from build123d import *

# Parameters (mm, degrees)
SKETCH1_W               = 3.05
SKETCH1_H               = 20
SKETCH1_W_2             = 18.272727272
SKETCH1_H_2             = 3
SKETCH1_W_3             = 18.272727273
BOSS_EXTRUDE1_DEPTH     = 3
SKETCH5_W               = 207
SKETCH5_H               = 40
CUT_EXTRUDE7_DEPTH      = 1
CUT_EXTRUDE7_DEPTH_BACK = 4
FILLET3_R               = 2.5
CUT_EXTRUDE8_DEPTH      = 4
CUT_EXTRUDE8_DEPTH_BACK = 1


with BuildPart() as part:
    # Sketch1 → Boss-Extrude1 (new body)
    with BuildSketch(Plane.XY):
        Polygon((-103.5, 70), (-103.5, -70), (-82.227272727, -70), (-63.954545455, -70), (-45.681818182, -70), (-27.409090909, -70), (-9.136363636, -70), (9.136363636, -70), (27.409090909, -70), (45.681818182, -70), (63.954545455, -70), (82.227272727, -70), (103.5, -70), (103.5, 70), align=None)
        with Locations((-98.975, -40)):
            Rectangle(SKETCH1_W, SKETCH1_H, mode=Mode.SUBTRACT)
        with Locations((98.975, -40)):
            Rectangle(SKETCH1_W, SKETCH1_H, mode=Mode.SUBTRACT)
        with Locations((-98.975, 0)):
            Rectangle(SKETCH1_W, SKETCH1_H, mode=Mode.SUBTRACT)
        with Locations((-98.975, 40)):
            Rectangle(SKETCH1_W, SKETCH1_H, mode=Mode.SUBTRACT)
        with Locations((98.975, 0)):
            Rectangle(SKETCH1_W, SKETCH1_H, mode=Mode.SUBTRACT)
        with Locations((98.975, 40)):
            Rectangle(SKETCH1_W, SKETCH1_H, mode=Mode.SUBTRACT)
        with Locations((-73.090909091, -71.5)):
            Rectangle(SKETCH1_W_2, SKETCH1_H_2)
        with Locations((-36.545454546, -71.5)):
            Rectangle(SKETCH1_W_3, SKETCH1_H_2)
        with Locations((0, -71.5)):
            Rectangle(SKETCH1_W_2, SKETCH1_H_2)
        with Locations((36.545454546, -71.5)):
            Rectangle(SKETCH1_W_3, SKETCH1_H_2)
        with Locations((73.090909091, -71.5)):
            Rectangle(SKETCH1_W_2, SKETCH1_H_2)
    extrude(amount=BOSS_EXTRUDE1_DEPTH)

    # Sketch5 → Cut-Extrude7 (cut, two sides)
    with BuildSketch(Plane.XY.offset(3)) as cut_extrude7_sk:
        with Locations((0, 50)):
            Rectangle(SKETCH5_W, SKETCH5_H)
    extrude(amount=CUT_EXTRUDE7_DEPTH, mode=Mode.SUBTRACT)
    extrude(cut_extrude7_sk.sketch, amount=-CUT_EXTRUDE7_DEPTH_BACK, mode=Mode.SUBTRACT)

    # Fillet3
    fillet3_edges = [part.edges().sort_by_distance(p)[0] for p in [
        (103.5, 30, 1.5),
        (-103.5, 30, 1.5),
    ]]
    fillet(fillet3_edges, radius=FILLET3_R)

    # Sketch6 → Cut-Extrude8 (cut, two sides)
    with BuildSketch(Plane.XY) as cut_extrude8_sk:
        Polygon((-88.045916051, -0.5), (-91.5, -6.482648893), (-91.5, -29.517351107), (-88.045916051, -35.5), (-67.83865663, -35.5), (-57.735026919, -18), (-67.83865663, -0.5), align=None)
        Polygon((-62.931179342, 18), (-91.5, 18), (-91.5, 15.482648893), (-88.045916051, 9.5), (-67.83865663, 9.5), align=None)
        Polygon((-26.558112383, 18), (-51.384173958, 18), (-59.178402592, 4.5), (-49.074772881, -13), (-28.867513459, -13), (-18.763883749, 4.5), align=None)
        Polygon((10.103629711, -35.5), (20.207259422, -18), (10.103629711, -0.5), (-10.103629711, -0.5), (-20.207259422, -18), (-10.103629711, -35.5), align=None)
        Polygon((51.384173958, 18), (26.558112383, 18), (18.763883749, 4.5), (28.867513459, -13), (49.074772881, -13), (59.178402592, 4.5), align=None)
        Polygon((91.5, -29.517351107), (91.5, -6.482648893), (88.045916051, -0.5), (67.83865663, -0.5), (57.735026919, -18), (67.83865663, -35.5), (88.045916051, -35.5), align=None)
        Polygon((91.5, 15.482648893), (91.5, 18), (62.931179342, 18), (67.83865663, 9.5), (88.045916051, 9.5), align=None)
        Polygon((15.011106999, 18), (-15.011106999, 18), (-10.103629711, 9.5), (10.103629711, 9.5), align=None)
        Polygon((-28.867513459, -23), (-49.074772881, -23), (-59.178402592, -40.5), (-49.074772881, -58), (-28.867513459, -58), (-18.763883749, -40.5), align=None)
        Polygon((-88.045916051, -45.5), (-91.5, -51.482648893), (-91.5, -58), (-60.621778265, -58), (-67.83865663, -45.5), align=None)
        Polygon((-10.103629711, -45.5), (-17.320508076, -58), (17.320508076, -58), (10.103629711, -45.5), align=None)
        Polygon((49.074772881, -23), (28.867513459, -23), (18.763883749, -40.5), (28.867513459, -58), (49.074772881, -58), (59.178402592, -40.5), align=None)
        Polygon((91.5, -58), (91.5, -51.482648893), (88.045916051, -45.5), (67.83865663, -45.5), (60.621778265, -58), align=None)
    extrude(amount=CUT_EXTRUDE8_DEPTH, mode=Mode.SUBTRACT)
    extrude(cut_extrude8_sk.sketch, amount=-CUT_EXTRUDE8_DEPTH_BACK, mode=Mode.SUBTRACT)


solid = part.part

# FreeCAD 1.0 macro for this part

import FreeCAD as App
import Part
import Sketcher
Q = App.Units.Quantity


def edges_at(feature, points):
    """Names of the edges that pass closest to the given points."""
    edges = feature.Shape.Edges
    near = lambda p: min(range(len(edges)), key=lambda i: edges[i].distToShape(Part.Vertex(*p))[0])
    return sorted({f"Edge{near(p) + 1}" for p in points})

doc = App.newDocument("Part")
params = doc.addObject("Spreadsheet::Sheet", "Params")
for row, (alias, value) in enumerate([
    ("sketch1_width", "207 mm"),
    ("sketch1_height", "140 mm"),
    ("sketch1_height2", "3 mm"),
    ("sketch1_height3", "20 mm"),
    ("sketch1_width2", "3.05 mm"),
    ("pad1_length", "3 mm"),
    ("sketch2_width", "207 mm"),
    ("sketch2_height", "40 mm"),
    ("fillet_radius", "2.5 mm"),
], start=1):
    params.set(f"A{row}", alias)
    params.set(f"B{row}", "=" + value)
    params.setAlias(f"B{row}", alias)

body = doc.addObject("PartDesign::Body", "Body")

# Sketch on XY plane
sketch1 = body.newObject("Sketcher::SketchObject", "Sketch")
sketch1.AttachmentSupport = (doc.getObject("XY_Plane"), [""])
sketch1.MapMode = "FlatFace"
sketch1.addGeometry([
    Part.LineSegment(App.Vector(-103.5, 70, 0), App.Vector(-103.5, -70, 0)),  # 0
    Part.LineSegment(App.Vector(-103.5, -70, 0), App.Vector(-82.227273, -70, 0)),  # 1
    Part.LineSegment(App.Vector(-82.227273, -70, 0), App.Vector(-82.227273, -73, 0)),  # 2
    Part.LineSegment(App.Vector(-82.227273, -73, 0), App.Vector(-63.954545, -73, 0)),  # 3
    Part.LineSegment(App.Vector(-63.954545, -73, 0), App.Vector(-63.954545, -70, 0)),  # 4
    Part.LineSegment(App.Vector(-63.954545, -70, 0), App.Vector(-45.681818, -70, 0)),  # 5
    Part.LineSegment(App.Vector(-45.681818, -70, 0), App.Vector(-45.681818, -73, 0)),  # 6
    Part.LineSegment(App.Vector(-45.681818, -73, 0), App.Vector(-27.409091, -73, 0)),  # 7
    Part.LineSegment(App.Vector(-27.409091, -73, 0), App.Vector(-27.409091, -70, 0)),  # 8
    Part.LineSegment(App.Vector(-27.409091, -70, 0), App.Vector(-9.136364, -70, 0)),  # 9
    Part.LineSegment(App.Vector(-9.136364, -70, 0), App.Vector(-9.136364, -73, 0)),  # 10
    Part.LineSegment(App.Vector(-9.136364, -73, 0), App.Vector(9.136364, -73, 0)),  # 11
    Part.LineSegment(App.Vector(9.136364, -73, 0), App.Vector(9.136364, -70, 0)),  # 12
    Part.LineSegment(App.Vector(9.136364, -70, 0), App.Vector(27.409091, -70, 0)),  # 13
    Part.LineSegment(App.Vector(27.409091, -70, 0), App.Vector(27.409091, -73, 0)),  # 14
    Part.LineSegment(App.Vector(27.409091, -73, 0), App.Vector(45.681818, -73, 0)),  # 15
    Part.LineSegment(App.Vector(45.681818, -73, 0), App.Vector(45.681818, -70, 0)),  # 16
    Part.LineSegment(App.Vector(45.681818, -70, 0), App.Vector(63.954545, -70, 0)),  # 17
    Part.LineSegment(App.Vector(63.954545, -70, 0), App.Vector(63.954545, -73, 0)),  # 18
    Part.LineSegment(App.Vector(63.954545, -73, 0), App.Vector(82.227273, -73, 0)),  # 19
    Part.LineSegment(App.Vector(82.227273, -73, 0), App.Vector(82.227273, -70, 0)),  # 20
    Part.LineSegment(App.Vector(82.227273, -70, 0), App.Vector(103.5, -70, 0)),  # 21
    Part.LineSegment(App.Vector(103.5, -70, 0), App.Vector(103.5, 70, 0)),  # 22
    Part.LineSegment(App.Vector(103.5, 70, 0), App.Vector(-103.5, 70, 0)),  # 23
    Part.LineSegment(App.Vector(-97.45, -50, 0), App.Vector(-100.5, -50, 0)),  # 24
    Part.LineSegment(App.Vector(-100.5, -50, 0), App.Vector(-100.5, -30, 0)),  # 25
    Part.LineSegment(App.Vector(-100.5, -30, 0), App.Vector(-97.45, -30, 0)),  # 26
    Part.LineSegment(App.Vector(-97.45, -30, 0), App.Vector(-97.45, -50, 0)),  # 27
    Part.LineSegment(App.Vector(100.5, -50, 0), App.Vector(97.45, -50, 0)),  # 28
    Part.LineSegment(App.Vector(97.45, -50, 0), App.Vector(97.45, -30, 0)),  # 29
    Part.LineSegment(App.Vector(97.45, -30, 0), App.Vector(100.5, -30, 0)),  # 30
    Part.LineSegment(App.Vector(100.5, -30, 0), App.Vector(100.5, -50, 0)),  # 31
    Part.LineSegment(App.Vector(-97.45, -10, 0), App.Vector(-100.5, -10, 0)),  # 32
    Part.LineSegment(App.Vector(-100.5, -10, 0), App.Vector(-100.5, 10, 0)),  # 33
    Part.LineSegment(App.Vector(-100.5, 10, 0), App.Vector(-97.45, 10, 0)),  # 34
    Part.LineSegment(App.Vector(-97.45, 10, 0), App.Vector(-97.45, -10, 0)),  # 35
    Part.LineSegment(App.Vector(-97.45, 30, 0), App.Vector(-100.5, 30, 0)),  # 36
    Part.LineSegment(App.Vector(-100.5, 30, 0), App.Vector(-100.5, 50, 0)),  # 37
    Part.LineSegment(App.Vector(-100.5, 50, 0), App.Vector(-97.45, 50, 0)),  # 38
    Part.LineSegment(App.Vector(-97.45, 50, 0), App.Vector(-97.45, 30, 0)),  # 39
    Part.LineSegment(App.Vector(100.5, -10, 0), App.Vector(97.45, -10, 0)),  # 40
    Part.LineSegment(App.Vector(97.45, -10, 0), App.Vector(97.45, 10, 0)),  # 41
    Part.LineSegment(App.Vector(97.45, 10, 0), App.Vector(100.5, 10, 0)),  # 42
    Part.LineSegment(App.Vector(100.5, 10, 0), App.Vector(100.5, -10, 0)),  # 43
    Part.LineSegment(App.Vector(100.5, 30, 0), App.Vector(97.45, 30, 0)),  # 44
    Part.LineSegment(App.Vector(97.45, 30, 0), App.Vector(97.45, 50, 0)),  # 45
    Part.LineSegment(App.Vector(97.45, 50, 0), App.Vector(100.5, 50, 0)),  # 46
    Part.LineSegment(App.Vector(100.5, 50, 0), App.Vector(100.5, 30, 0)),  # 47
], False)
sketch1.addConstraint([
    Sketcher.Constraint("Coincident", 0, 2, 1, 1),
    Sketcher.Constraint("Coincident", 1, 2, 2, 1),
    Sketcher.Constraint("Coincident", 2, 2, 3, 1),
    Sketcher.Constraint("Coincident", 3, 2, 4, 1),
    Sketcher.Constraint("Coincident", 4, 2, 5, 1),
    Sketcher.Constraint("Coincident", 5, 2, 6, 1),
    Sketcher.Constraint("Coincident", 6, 2, 7, 1),
    Sketcher.Constraint("Coincident", 7, 2, 8, 1),
    Sketcher.Constraint("Coincident", 8, 2, 9, 1),
    Sketcher.Constraint("Coincident", 9, 2, 10, 1),
    Sketcher.Constraint("Coincident", 10, 2, 11, 1),
    Sketcher.Constraint("Coincident", 11, 2, 12, 1),
    Sketcher.Constraint("Coincident", 12, 2, 13, 1),
    Sketcher.Constraint("Coincident", 13, 2, 14, 1),
    Sketcher.Constraint("Coincident", 14, 2, 15, 1),
    Sketcher.Constraint("Coincident", 15, 2, 16, 1),
    Sketcher.Constraint("Coincident", 16, 2, 17, 1),
    Sketcher.Constraint("Coincident", 17, 2, 18, 1),
    Sketcher.Constraint("Coincident", 18, 2, 19, 1),
    Sketcher.Constraint("Coincident", 19, 2, 20, 1),
    Sketcher.Constraint("Coincident", 20, 2, 21, 1),
    Sketcher.Constraint("Coincident", 21, 2, 22, 1),
    Sketcher.Constraint("Coincident", 22, 2, 23, 1),
    Sketcher.Constraint("Coincident", 23, 2, 0, 1),
    Sketcher.Constraint("Coincident", 24, 2, 25, 1),
    Sketcher.Constraint("Coincident", 25, 2, 26, 1),
    Sketcher.Constraint("Coincident", 26, 2, 27, 1),
    Sketcher.Constraint("Coincident", 27, 2, 24, 1),
    Sketcher.Constraint("Coincident", 28, 2, 29, 1),
    Sketcher.Constraint("Coincident", 29, 2, 30, 1),
    Sketcher.Constraint("Coincident", 30, 2, 31, 1),
    Sketcher.Constraint("Coincident", 31, 2, 28, 1),
    Sketcher.Constraint("Coincident", 32, 2, 33, 1),
    Sketcher.Constraint("Coincident", 33, 2, 34, 1),
    Sketcher.Constraint("Coincident", 34, 2, 35, 1),
    Sketcher.Constraint("Coincident", 35, 2, 32, 1),
    Sketcher.Constraint("Coincident", 36, 2, 37, 1),
    Sketcher.Constraint("Coincident", 37, 2, 38, 1),
    Sketcher.Constraint("Coincident", 38, 2, 39, 1),
    Sketcher.Constraint("Coincident", 39, 2, 36, 1),
    Sketcher.Constraint("Coincident", 40, 2, 41, 1),
    Sketcher.Constraint("Coincident", 41, 2, 42, 1),
    Sketcher.Constraint("Coincident", 42, 2, 43, 1),
    Sketcher.Constraint("Coincident", 43, 2, 40, 1),
    Sketcher.Constraint("Coincident", 44, 2, 45, 1),
    Sketcher.Constraint("Coincident", 45, 2, 46, 1),
    Sketcher.Constraint("Coincident", 46, 2, 47, 1),
    Sketcher.Constraint("Coincident", 47, 2, 44, 1),
    Sketcher.Constraint("Vertical", 0),
    Sketcher.Constraint("Horizontal", 1),
    Sketcher.Constraint("Vertical", 2),
    Sketcher.Constraint("Horizontal", 3),
    Sketcher.Constraint("Vertical", 4),
    Sketcher.Constraint("Horizontal", 5),
    Sketcher.Constraint("Vertical", 6),
    Sketcher.Constraint("Horizontal", 7),
    Sketcher.Constraint("Vertical", 8),
    Sketcher.Constraint("Horizontal", 9),
    Sketcher.Constraint("Vertical", 10),
    Sketcher.Constraint("Horizontal", 11),
    Sketcher.Constraint("Vertical", 12),
    Sketcher.Constraint("Horizontal", 13),
    Sketcher.Constraint("Vertical", 14),
    Sketcher.Constraint("Horizontal", 15),
    Sketcher.Constraint("Vertical", 16),
    Sketcher.Constraint("Horizontal", 17),
    Sketcher.Constraint("Vertical", 18),
    Sketcher.Constraint("Horizontal", 19),
    Sketcher.Constraint("Vertical", 20),
    Sketcher.Constraint("Horizontal", 21),
    Sketcher.Constraint("Vertical", 22),
    Sketcher.Constraint("Horizontal", 23),
    Sketcher.Constraint("Horizontal", 24),
    Sketcher.Constraint("Vertical", 25),
    Sketcher.Constraint("Horizontal", 26),
    Sketcher.Constraint("Vertical", 27),
    Sketcher.Constraint("Horizontal", 28),
    Sketcher.Constraint("Vertical", 29),
    Sketcher.Constraint("Horizontal", 30),
    Sketcher.Constraint("Vertical", 31),
    Sketcher.Constraint("Horizontal", 32),
    Sketcher.Constraint("Vertical", 33),
    Sketcher.Constraint("Horizontal", 34),
    Sketcher.Constraint("Vertical", 35),
    Sketcher.Constraint("Horizontal", 36),
    Sketcher.Constraint("Vertical", 37),
    Sketcher.Constraint("Horizontal", 38),
    Sketcher.Constraint("Vertical", 39),
    Sketcher.Constraint("Horizontal", 40),
    Sketcher.Constraint("Vertical", 41),
    Sketcher.Constraint("Horizontal", 42),
    Sketcher.Constraint("Vertical", 43),
    Sketcher.Constraint("Horizontal", 44),
    Sketcher.Constraint("Vertical", 45),
    Sketcher.Constraint("Horizontal", 46),
    Sketcher.Constraint("Vertical", 47),
    Sketcher.Constraint("Symmetric", 0, 2, 22, 2, -1, 1),
    Sketcher.Constraint("Symmetric", 30, 2, 36, 2, -1, 1),
    Sketcher.Constraint("Symmetric", 28, 2, 38, 2, -1, 1),
    Sketcher.Constraint("Symmetric", 34, 2, 40, 2, -1, 1),
    Sketcher.Constraint("Symmetric", 32, 2, 42, 2, -1, 1),
    Sketcher.Constraint("Symmetric", 26, 2, 44, 2, -1, 1),
    Sketcher.Constraint("Symmetric", 24, 2, 46, 2, -1, 1),
    Sketcher.Constraint("Symmetric", 9, 2, 12, 2, -2),
    Sketcher.Constraint("Symmetric", 7, 2, 14, 2, -2),
    Sketcher.Constraint("Symmetric", 5, 2, 16, 2, -2),
    Sketcher.Constraint("Symmetric", 3, 2, 18, 2, -2),
    Sketcher.Constraint("Symmetric", 1, 2, 20, 2, -2),
    Sketcher.Constraint("Symmetric", 27, 2, 28, 2, -2),
    Sketcher.Constraint("Symmetric", 25, 2, 30, 2, -2),
    Sketcher.Constraint("Horizontal", 1, 2, 4, 2),
    Sketcher.Constraint("Horizontal", 3, 2, 6, 2),
    Sketcher.Constraint("Horizontal", 5, 2, 8, 2),
    Sketcher.Constraint("Horizontal", 7, 2, 10, 2),
    Sketcher.Constraint("Horizontal", 35, 2, 40, 2),
    Sketcher.Constraint("Vertical", 25, 2, 32, 2),
    Sketcher.Constraint("Vertical", 27, 2, 34, 2),
    Sketcher.Constraint("Equal", 3, 5),
    Sketcher.Constraint("Equal", 5, 7),
    Sketcher.Constraint("Equal", 7, 9),
    Sketcher.Constraint("Equal", 9, 11),
    Sketcher.Constraint("Equal", 31, 33),
    Sketcher.Constraint("DistanceX", 23, 2, 23, 1, 207.0),
    Sketcher.Constraint("DistanceY", 0, 2, 0, 1, 140.0),
    Sketcher.Constraint("DistanceY", 2, 2, 2, 1, 3.0),
    Sketcher.Constraint("DistanceY", 25, 1, 25, 2, 20.0),
    Sketcher.Constraint("DistanceY", 24, 2, -1, 1, 50.0),
    Sketcher.Constraint("DistanceX", 0, 2, 24, 2, 3.0),
    Sketcher.Constraint("DistanceX", 24, 2, 24, 1, 3.05),
    Sketcher.Constraint("DistanceX", 1, 1, 1, 2, 21.272727),
])
sketch1.setExpression("Constraints[122]", "Params.sketch1_width")
sketch1.setExpression("Constraints[123]", "Params.sketch1_height")
sketch1.setExpression("Constraints[124]", "Params.sketch1_height2")
sketch1.setExpression("Constraints[125]", "Params.sketch1_height3")
sketch1.setExpression("Constraints[128]", "Params.sketch1_width2")
pad1 = body.newObject("PartDesign::Pad", "Pad")
pad1.Profile = sketch1
pad1.setExpression("Length", "Params.pad1_length")

# Sketch on XY plane
sketch2 = body.newObject("Sketcher::SketchObject", "Sketch001")
sketch2.AttachmentSupport = (doc.getObject("XY_Plane"), [""])
sketch2.MapMode = "FlatFace"
sketch2.AttachmentOffset = App.Placement(App.Vector(0, 0, 3), App.Rotation())
sketch2.addGeometry([
    Part.LineSegment(App.Vector(-103.5, 70, 0), App.Vector(-103.5, 30, 0)),
    Part.LineSegment(App.Vector(-103.5, 30, 0), App.Vector(103.5, 30, 0)),
    Part.LineSegment(App.Vector(103.5, 30, 0), App.Vector(103.5, 70, 0)),
    Part.LineSegment(App.Vector(103.5, 70, 0), App.Vector(-103.5, 70, 0)),
], False)
sketch2.addConstraint([
    Sketcher.Constraint("Coincident", 0, 2, 1, 1),
    Sketcher.Constraint("Coincident", 1, 2, 2, 1),
    Sketcher.Constraint("Coincident", 2, 2, 3, 1),
    Sketcher.Constraint("Coincident", 3, 2, 0, 1),
    Sketcher.Constraint("Vertical", 0),
    Sketcher.Constraint("Horizontal", 1),
    Sketcher.Constraint("Vertical", 2),
    Sketcher.Constraint("Horizontal", 3),
    Sketcher.Constraint("DistanceX", 1, 1, 1, 2, 207.0),
    Sketcher.Constraint("DistanceY", 0, 2, 0, 1, 40.0),
    Sketcher.Constraint("DistanceY", -1, 1, 0, 2, 30.0),
    Sketcher.Constraint("DistanceX", 0, 2, -1, 1, 103.5),
])
sketch2.setExpression("Constraints[8]", "Params.sketch2_width")
sketch2.setExpression("Constraints[9]", "Params.sketch2_height")
pocket1 = body.newObject("PartDesign::Pocket", "Pocket")
pocket1.Profile = sketch2
pocket1.Type = "ThroughAll"
pocket1.Midplane = True
doc.recompute()

fillet = body.newObject("PartDesign::Fillet", "Fillet")
fillet.Base = (pocket1, edges_at(pocket1, [(103.5, 30, 1.5), (-103.5, 30, 1.5)]))
fillet.setExpression("Radius", "Params.fillet_radius")

# Sketch on XY plane
sketch3 = body.newObject("Sketcher::SketchObject", "Sketch002")
sketch3.AttachmentSupport = (doc.getObject("XY_Plane"), [""])
sketch3.MapMode = "FlatFace"
sketch3.addGeometry([
    Part.LineSegment(App.Vector(-88.045916, -0.5, 0), App.Vector(-91.5, -6.482649, 0)),  # 0
    Part.LineSegment(App.Vector(-91.5, -6.482649, 0), App.Vector(-91.5, -29.517351, 0)),  # 1
    Part.LineSegment(App.Vector(-91.5, -29.517351, 0), App.Vector(-88.045916, -35.5, 0)),  # 2
    Part.LineSegment(App.Vector(-88.045916, -35.5, 0), App.Vector(-67.838657, -35.5, 0)),  # 3
    Part.LineSegment(App.Vector(-67.838657, -35.5, 0), App.Vector(-57.735027, -18, 0)),  # 4
    Part.LineSegment(App.Vector(-57.735027, -18, 0), App.Vector(-67.838657, -0.5, 0)),  # 5
    Part.LineSegment(App.Vector(-67.838657, -0.5, 0), App.Vector(-88.045916, -0.5, 0)),  # 6
    Part.LineSegment(App.Vector(-62.931179, 18, 0), App.Vector(-91.5, 18, 0)),  # 7
    Part.LineSegment(App.Vector(-91.5, 18, 0), App.Vector(-91.5, 15.482649, 0)),  # 8
    Part.LineSegment(App.Vector(-91.5, 15.482649, 0), App.Vector(-88.045916, 9.5, 0)),  # 9
    Part.LineSegment(App.Vector(-88.045916, 9.5, 0), App.Vector(-67.838657, 9.5, 0)),  # 10
    Part.LineSegment(App.Vector(-67.838657, 9.5, 0), App.Vector(-62.931179, 18, 0)),  # 11
    Part.LineSegment(App.Vector(-26.558112, 18, 0), App.Vector(-51.384174, 18, 0)),  # 12
    Part.LineSegment(App.Vector(-51.384174, 18, 0), App.Vector(-59.178403, 4.5, 0)),  # 13
    Part.LineSegment(App.Vector(-59.178403, 4.5, 0), App.Vector(-49.074773, -13, 0)),  # 14
    Part.LineSegment(App.Vector(-49.074773, -13, 0), App.Vector(-28.867513, -13, 0)),  # 15
    Part.LineSegment(App.Vector(-28.867513, -13, 0), App.Vector(-18.763884, 4.5, 0)),  # 16
    Part.LineSegment(App.Vector(-18.763884, 4.5, 0), App.Vector(-26.558112, 18, 0)),  # 17
    Part.LineSegment(App.Vector(10.10363, -35.5, 0), App.Vector(20.207259, -18, 0)),  # 18
    Part.LineSegment(App.Vector(20.207259, -18, 0), App.Vector(10.10363, -0.5, 0)),  # 19
    Part.LineSegment(App.Vector(10.10363, -0.5, 0), App.Vector(-10.10363, -0.5, 0)),  # 20
    Part.LineSegment(App.Vector(-10.10363, -0.5, 0), App.Vector(-20.207259, -18, 0)),  # 21
    Part.LineSegment(App.Vector(-20.207259, -18, 0), App.Vector(-10.10363, -35.5, 0)),  # 22
    Part.LineSegment(App.Vector(-10.10363, -35.5, 0), App.Vector(10.10363, -35.5, 0)),  # 23
    Part.LineSegment(App.Vector(51.384174, 18, 0), App.Vector(26.558112, 18, 0)),  # 24
    Part.LineSegment(App.Vector(26.558112, 18, 0), App.Vector(18.763884, 4.5, 0)),  # 25
    Part.LineSegment(App.Vector(18.763884, 4.5, 0), App.Vector(28.867513, -13, 0)),  # 26
    Part.LineSegment(App.Vector(28.867513, -13, 0), App.Vector(49.074773, -13, 0)),  # 27
    Part.LineSegment(App.Vector(49.074773, -13, 0), App.Vector(59.178403, 4.5, 0)),  # 28
    Part.LineSegment(App.Vector(59.178403, 4.5, 0), App.Vector(51.384174, 18, 0)),  # 29
    Part.LineSegment(App.Vector(91.5, -29.517351, 0), App.Vector(91.5, -6.482649, 0)),  # 30
    Part.LineSegment(App.Vector(91.5, -6.482649, 0), App.Vector(88.045916, -0.5, 0)),  # 31
    Part.LineSegment(App.Vector(88.045916, -0.5, 0), App.Vector(67.838657, -0.5, 0)),  # 32
    Part.LineSegment(App.Vector(67.838657, -0.5, 0), App.Vector(57.735027, -18, 0)),  # 33
    Part.LineSegment(App.Vector(57.735027, -18, 0), App.Vector(67.838657, -35.5, 0)),  # 34
    Part.LineSegment(App.Vector(67.838657, -35.5, 0), App.Vector(88.045916, -35.5, 0)),  # 35
    Part.LineSegment(App.Vector(88.045916, -35.5, 0), App.Vector(91.5, -29.517351, 0)),  # 36
    Part.LineSegment(App.Vector(91.5, 15.482649, 0), App.Vector(91.5, 18, 0)),  # 37
    Part.LineSegment(App.Vector(91.5, 18, 0), App.Vector(62.931179, 18, 0)),  # 38
    Part.LineSegment(App.Vector(62.931179, 18, 0), App.Vector(67.838657, 9.5, 0)),  # 39
    Part.LineSegment(App.Vector(67.838657, 9.5, 0), App.Vector(88.045916, 9.5, 0)),  # 40
    Part.LineSegment(App.Vector(88.045916, 9.5, 0), App.Vector(91.5, 15.482649, 0)),  # 41
    Part.LineSegment(App.Vector(15.011107, 18, 0), App.Vector(-15.011107, 18, 0)),  # 42
    Part.LineSegment(App.Vector(-15.011107, 18, 0), App.Vector(-10.10363, 9.5, 0)),  # 43
    Part.LineSegment(App.Vector(-10.10363, 9.5, 0), App.Vector(10.10363, 9.5, 0)),  # 44
    Part.LineSegment(App.Vector(10.10363, 9.5, 0), App.Vector(15.011107, 18, 0)),  # 45
    Part.LineSegment(App.Vector(-28.867513, -23, 0), App.Vector(-49.074773, -23, 0)),  # 46
    Part.LineSegment(App.Vector(-49.074773, -23, 0), App.Vector(-59.178403, -40.5, 0)),  # 47
    Part.LineSegment(App.Vector(-59.178403, -40.5, 0), App.Vector(-49.074773, -58, 0)),  # 48
    Part.LineSegment(App.Vector(-49.074773, -58, 0), App.Vector(-28.867513, -58, 0)),  # 49
    Part.LineSegment(App.Vector(-28.867513, -58, 0), App.Vector(-18.763884, -40.5, 0)),  # 50
    Part.LineSegment(App.Vector(-18.763884, -40.5, 0), App.Vector(-28.867513, -23, 0)),  # 51
    Part.LineSegment(App.Vector(-88.045916, -45.5, 0), App.Vector(-91.5, -51.482649, 0)),  # 52
    Part.LineSegment(App.Vector(-91.5, -51.482649, 0), App.Vector(-91.5, -58, 0)),  # 53
    Part.LineSegment(App.Vector(-91.5, -58, 0), App.Vector(-60.621778, -58, 0)),  # 54
    Part.LineSegment(App.Vector(-60.621778, -58, 0), App.Vector(-67.838657, -45.5, 0)),  # 55
    Part.LineSegment(App.Vector(-67.838657, -45.5, 0), App.Vector(-88.045916, -45.5, 0)),  # 56
    Part.LineSegment(App.Vector(-10.10363, -45.5, 0), App.Vector(-17.320508, -58, 0)),  # 57
    Part.LineSegment(App.Vector(-17.320508, -58, 0), App.Vector(17.320508, -58, 0)),  # 58
    Part.LineSegment(App.Vector(17.320508, -58, 0), App.Vector(10.10363, -45.5, 0)),  # 59
    Part.LineSegment(App.Vector(10.10363, -45.5, 0), App.Vector(-10.10363, -45.5, 0)),  # 60
    Part.LineSegment(App.Vector(49.074773, -23, 0), App.Vector(28.867513, -23, 0)),  # 61
    Part.LineSegment(App.Vector(28.867513, -23, 0), App.Vector(18.763884, -40.5, 0)),  # 62
    Part.LineSegment(App.Vector(18.763884, -40.5, 0), App.Vector(28.867513, -58, 0)),  # 63
    Part.LineSegment(App.Vector(28.867513, -58, 0), App.Vector(49.074773, -58, 0)),  # 64
    Part.LineSegment(App.Vector(49.074773, -58, 0), App.Vector(59.178403, -40.5, 0)),  # 65
    Part.LineSegment(App.Vector(59.178403, -40.5, 0), App.Vector(49.074773, -23, 0)),  # 66
    Part.LineSegment(App.Vector(91.5, -58, 0), App.Vector(91.5, -51.482649, 0)),  # 67
    Part.LineSegment(App.Vector(91.5, -51.482649, 0), App.Vector(88.045916, -45.5, 0)),  # 68
    Part.LineSegment(App.Vector(88.045916, -45.5, 0), App.Vector(67.838657, -45.5, 0)),  # 69
    Part.LineSegment(App.Vector(67.838657, -45.5, 0), App.Vector(60.621778, -58, 0)),  # 70
    Part.LineSegment(App.Vector(60.621778, -58, 0), App.Vector(91.5, -58, 0)),  # 71
], False)
sketch3.addConstraint([
    Sketcher.Constraint("Coincident", 0, 2, 1, 1),
    Sketcher.Constraint("Coincident", 1, 2, 2, 1),
    Sketcher.Constraint("Coincident", 2, 2, 3, 1),
    Sketcher.Constraint("Coincident", 3, 2, 4, 1),
    Sketcher.Constraint("Coincident", 4, 2, 5, 1),
    Sketcher.Constraint("Coincident", 5, 2, 6, 1),
    Sketcher.Constraint("Coincident", 6, 2, 0, 1),
    Sketcher.Constraint("Coincident", 7, 2, 8, 1),
    Sketcher.Constraint("Coincident", 8, 2, 9, 1),
    Sketcher.Constraint("Coincident", 9, 2, 10, 1),
    Sketcher.Constraint("Coincident", 10, 2, 11, 1),
    Sketcher.Constraint("Coincident", 11, 2, 7, 1),
    Sketcher.Constraint("Coincident", 12, 2, 13, 1),
    Sketcher.Constraint("Coincident", 13, 2, 14, 1),
    Sketcher.Constraint("Coincident", 14, 2, 15, 1),
    Sketcher.Constraint("Coincident", 15, 2, 16, 1),
    Sketcher.Constraint("Coincident", 16, 2, 17, 1),
    Sketcher.Constraint("Coincident", 17, 2, 12, 1),
    Sketcher.Constraint("Coincident", 18, 2, 19, 1),
    Sketcher.Constraint("Coincident", 19, 2, 20, 1),
    Sketcher.Constraint("Coincident", 20, 2, 21, 1),
    Sketcher.Constraint("Coincident", 21, 2, 22, 1),
    Sketcher.Constraint("Coincident", 22, 2, 23, 1),
    Sketcher.Constraint("Coincident", 23, 2, 18, 1),
    Sketcher.Constraint("Coincident", 24, 2, 25, 1),
    Sketcher.Constraint("Coincident", 25, 2, 26, 1),
    Sketcher.Constraint("Coincident", 26, 2, 27, 1),
    Sketcher.Constraint("Coincident", 27, 2, 28, 1),
    Sketcher.Constraint("Coincident", 28, 2, 29, 1),
    Sketcher.Constraint("Coincident", 29, 2, 24, 1),
    Sketcher.Constraint("Coincident", 30, 2, 31, 1),
    Sketcher.Constraint("Coincident", 31, 2, 32, 1),
    Sketcher.Constraint("Coincident", 32, 2, 33, 1),
    Sketcher.Constraint("Coincident", 33, 2, 34, 1),
    Sketcher.Constraint("Coincident", 34, 2, 35, 1),
    Sketcher.Constraint("Coincident", 35, 2, 36, 1),
    Sketcher.Constraint("Coincident", 36, 2, 30, 1),
    Sketcher.Constraint("Coincident", 37, 2, 38, 1),
    Sketcher.Constraint("Coincident", 38, 2, 39, 1),
    Sketcher.Constraint("Coincident", 39, 2, 40, 1),
    Sketcher.Constraint("Coincident", 40, 2, 41, 1),
    Sketcher.Constraint("Coincident", 41, 2, 37, 1),
    Sketcher.Constraint("Coincident", 42, 2, 43, 1),
    Sketcher.Constraint("Coincident", 43, 2, 44, 1),
    Sketcher.Constraint("Coincident", 44, 2, 45, 1),
    Sketcher.Constraint("Coincident", 45, 2, 42, 1),
    Sketcher.Constraint("Coincident", 46, 2, 47, 1),
    Sketcher.Constraint("Coincident", 47, 2, 48, 1),
    Sketcher.Constraint("Coincident", 48, 2, 49, 1),
    Sketcher.Constraint("Coincident", 49, 2, 50, 1),
    Sketcher.Constraint("Coincident", 50, 2, 51, 1),
    Sketcher.Constraint("Coincident", 51, 2, 46, 1),
    Sketcher.Constraint("Coincident", 52, 2, 53, 1),
    Sketcher.Constraint("Coincident", 53, 2, 54, 1),
    Sketcher.Constraint("Coincident", 54, 2, 55, 1),
    Sketcher.Constraint("Coincident", 55, 2, 56, 1),
    Sketcher.Constraint("Coincident", 56, 2, 52, 1),
    Sketcher.Constraint("Coincident", 57, 2, 58, 1),
    Sketcher.Constraint("Coincident", 58, 2, 59, 1),
    Sketcher.Constraint("Coincident", 59, 2, 60, 1),
    Sketcher.Constraint("Coincident", 60, 2, 57, 1),
    Sketcher.Constraint("Coincident", 61, 2, 62, 1),
    Sketcher.Constraint("Coincident", 62, 2, 63, 1),
    Sketcher.Constraint("Coincident", 63, 2, 64, 1),
    Sketcher.Constraint("Coincident", 64, 2, 65, 1),
    Sketcher.Constraint("Coincident", 65, 2, 66, 1),
    Sketcher.Constraint("Coincident", 66, 2, 61, 1),
    Sketcher.Constraint("Coincident", 67, 2, 68, 1),
    Sketcher.Constraint("Coincident", 68, 2, 69, 1),
    Sketcher.Constraint("Coincident", 69, 2, 70, 1),
    Sketcher.Constraint("Coincident", 70, 2, 71, 1),
    Sketcher.Constraint("Coincident", 71, 2, 67, 1),
    Sketcher.Constraint("Vertical", 1),
    Sketcher.Constraint("Horizontal", 3),
    Sketcher.Constraint("Horizontal", 6),
    Sketcher.Constraint("Horizontal", 7),
    Sketcher.Constraint("Vertical", 8),
    Sketcher.Constraint("Horizontal", 10),
    Sketcher.Constraint("Horizontal", 12),
    Sketcher.Constraint("Horizontal", 15),
    Sketcher.Constraint("Horizontal", 20),
    Sketcher.Constraint("Horizontal", 23),
    Sketcher.Constraint("Horizontal", 24),
    Sketcher.Constraint("Horizontal", 27),
    Sketcher.Constraint("Vertical", 30),
    Sketcher.Constraint("Horizontal", 32),
    Sketcher.Constraint("Horizontal", 35),
    Sketcher.Constraint("Vertical", 37),
    Sketcher.Constraint("Horizontal", 38),
    Sketcher.Constraint("Horizontal", 40),
    Sketcher.Constraint("Horizontal", 42),
    Sketcher.Constraint("Horizontal", 44),
    Sketcher.Constraint("Horizontal", 46),
    Sketcher.Constraint("Horizontal", 49),
    Sketcher.Constraint("Vertical", 53),
    Sketcher.Constraint("Horizontal", 54),
    Sketcher.Constraint("Horizontal", 56),
    Sketcher.Constraint("Horizontal", 58),
    Sketcher.Constraint("Horizontal", 60),
    Sketcher.Constraint("Horizontal", 61),
    Sketcher.Constraint("Horizontal", 64),
    Sketcher.Constraint("Vertical", 67),
    Sketcher.Constraint("Horizontal", 69),
    Sketcher.Constraint("Horizontal", 71),
    Sketcher.Constraint("Symmetric", 18, 2, 21, 2, -2),
    Sketcher.Constraint("Symmetric", 17, 2, 24, 2, -2),
    Sketcher.Constraint("Symmetric", 16, 2, 25, 2, -2),
    Sketcher.Constraint("Symmetric", 15, 2, 26, 2, -2),
    Sketcher.Constraint("Symmetric", 13, 2, 28, 2, -2),
    Sketcher.Constraint("Symmetric", 0, 2, 30, 2, -2),
    Sketcher.Constraint("Symmetric", 6, 2, 31, 2, -2),
    Sketcher.Constraint("Symmetric", 4, 2, 33, 2, -2),
    Sketcher.Constraint("Symmetric", 3, 2, 34, 2, -2),
    Sketcher.Constraint("Symmetric", 7, 2, 37, 2, -2),
    Sketcher.Constraint("Symmetric", 10, 2, 39, 2, -2),
    Sketcher.Constraint("Symmetric", 51, 2, 61, 2, -2),
    Sketcher.Constraint("Symmetric", 50, 2, 62, 2, -2),
    Sketcher.Constraint("Symmetric", 49, 2, 63, 2, -2),
    Sketcher.Constraint("Symmetric", 47, 2, 65, 2, -2),
    Sketcher.Constraint("Symmetric", 52, 2, 67, 2, -2),
    Sketcher.Constraint("Symmetric", 56, 2, 68, 2, -2),
    Sketcher.Constraint("Symmetric", 54, 2, 70, 2, -2),
    Sketcher.Constraint("Parallel", 0, 4),
    Sketcher.Constraint("Parallel", 2, 5),
    Sketcher.Constraint("Parallel", 5, 9),
    Sketcher.Constraint("Parallel", 4, 11),
    Sketcher.Constraint("Parallel", 11, 13),
    Sketcher.Constraint("Parallel", 9, 14),
    Sketcher.Constraint("Parallel", 13, 16),
    Sketcher.Constraint("Parallel", 14, 17),
    Sketcher.Constraint("Parallel", 16, 18),
    Sketcher.Constraint("Parallel", 17, 19),
    Sketcher.Constraint("Parallel", 18, 21),
    Sketcher.Constraint("Parallel", 19, 22),
    Sketcher.Constraint("Parallel", 21, 25),
    Sketcher.Constraint("Parallel", 25, 28),
    Sketcher.Constraint("Parallel", 26, 29),
    Sketcher.Constraint("Parallel", 28, 33),
    Sketcher.Constraint("Parallel", 33, 36),
    Sketcher.Constraint("Parallel", 34, 39),
    Sketcher.Constraint("Parallel", 36, 41),
    Sketcher.Constraint("Parallel", 39, 43),
    Sketcher.Constraint("Parallel", 41, 45),
    Sketcher.Constraint("Parallel", 45, 47),
    Sketcher.Constraint("Parallel", 43, 48),
    Sketcher.Constraint("Parallel", 47, 50),
    Sketcher.Constraint("Parallel", 48, 51),
    Sketcher.Constraint("Parallel", 50, 52),
    Sketcher.Constraint("Parallel", 51, 55),
    Sketcher.Constraint("Parallel", 52, 57),
    Sketcher.Constraint("Parallel", 55, 59),
    Sketcher.Constraint("Parallel", 62, 65),
    Sketcher.Constraint("Parallel", 63, 66),
    Sketcher.Constraint("Parallel", 65, 70),
    Sketcher.Constraint("Horizontal", 11, 2, 12, 2),
    Sketcher.Constraint("Horizontal", 13, 2, 16, 2),
    Sketcher.Constraint("Horizontal", 4, 2, 18, 2),
    Sketcher.Constraint("Horizontal", 6, 2, 19, 2),
    Sketcher.Constraint("Horizontal", 3, 2, 22, 2),
    Sketcher.Constraint("Horizontal", 1, 2, 36, 2),
    Sketcher.Constraint("Horizontal", 8, 2, 41, 2),
    Sketcher.Constraint("Horizontal", 38, 2, 42, 2),
    Sketcher.Constraint("Horizontal", 40, 2, 43, 2),
    Sketcher.Constraint("Horizontal", 47, 2, 50, 2),
    Sketcher.Constraint("Horizontal", 49, 2, 53, 2),
    Sketcher.Constraint("Horizontal", 54, 2, 57, 2),
    Sketcher.Constraint("Horizontal", 56, 2, 59, 2),
    Sketcher.Constraint("Vertical", 3, 2, 5, 2),
    Sketcher.Constraint("Vertical", 2, 2, 6, 2),
    Sketcher.Constraint("Vertical", 1, 2, 7, 2),
    Sketcher.Constraint("Vertical", 6, 2, 9, 2),
    Sketcher.Constraint("Vertical", 5, 2, 10, 2),
    Sketcher.Constraint("Vertical", 22, 2, 43, 2),
    Sketcher.Constraint("Vertical", 23, 2, 44, 2),
    Sketcher.Constraint("Vertical", 14, 2, 46, 2),
    Sketcher.Constraint("Vertical", 13, 2, 47, 2),
    Sketcher.Constraint("Vertical", 46, 2, 48, 2),
    Sketcher.Constraint("Vertical", 15, 2, 49, 2),
    Sketcher.Constraint("Vertical", 8, 2, 52, 2),
    Sketcher.Constraint("Vertical", 10, 2, 55, 2),
    Sketcher.Constraint("Vertical", 9, 2, 56, 2),
    Sketcher.Constraint("Vertical", 44, 2, 59, 2),
    Sketcher.Constraint("Vertical", 43, 2, 60, 2),
    Sketcher.Constraint("Equal", 10, 15),
    Sketcher.Constraint("Equal", 15, 20),
    Sketcher.Constraint("Equal", 5, 14),
    Sketcher.Constraint("Angle", 0, Q("-120 deg")),
    Sketcher.Constraint("DistanceY", 4, 2, -1, 1, 18.0),
    Sketcher.Constraint("DistanceY", -1, 1, 7, 2, 18.0),
    Sketcher.Constraint("DistanceY", 14, 2, -1, 1, 13.0),
    Sketcher.Constraint("DistanceY", 46, 2, -1, 1, 23.0),
    Sketcher.Constraint("DistanceY", 48, 2, -1, 1, 58.0),
    Sketcher.Constraint("DistanceX", 0, 2, -1, 1, 91.5),
    Sketcher.Constraint("DistanceY", -1, 1, 9, 2, 9.5),
    Sketcher.Constraint("DistanceY", 55, 2, -1, 1, 45.5),
    Sketcher.Constraint("DistanceX", 3, 1, 3, 2, 20.207259),
    Sketcher.Constraint("DistanceX", 7, 2, 7, 1, 28.568821),
    Sketcher.Constraint("DistanceX", 12, 2, -1, 1, 51.384174),
])
pocket2 = body.newObject("PartDesign::Pocket", "Pocket001")
pocket2.Profile = sketch3
pocket2.Type = "ThroughAll"
pocket2.Midplane = True

doc.recompute()
